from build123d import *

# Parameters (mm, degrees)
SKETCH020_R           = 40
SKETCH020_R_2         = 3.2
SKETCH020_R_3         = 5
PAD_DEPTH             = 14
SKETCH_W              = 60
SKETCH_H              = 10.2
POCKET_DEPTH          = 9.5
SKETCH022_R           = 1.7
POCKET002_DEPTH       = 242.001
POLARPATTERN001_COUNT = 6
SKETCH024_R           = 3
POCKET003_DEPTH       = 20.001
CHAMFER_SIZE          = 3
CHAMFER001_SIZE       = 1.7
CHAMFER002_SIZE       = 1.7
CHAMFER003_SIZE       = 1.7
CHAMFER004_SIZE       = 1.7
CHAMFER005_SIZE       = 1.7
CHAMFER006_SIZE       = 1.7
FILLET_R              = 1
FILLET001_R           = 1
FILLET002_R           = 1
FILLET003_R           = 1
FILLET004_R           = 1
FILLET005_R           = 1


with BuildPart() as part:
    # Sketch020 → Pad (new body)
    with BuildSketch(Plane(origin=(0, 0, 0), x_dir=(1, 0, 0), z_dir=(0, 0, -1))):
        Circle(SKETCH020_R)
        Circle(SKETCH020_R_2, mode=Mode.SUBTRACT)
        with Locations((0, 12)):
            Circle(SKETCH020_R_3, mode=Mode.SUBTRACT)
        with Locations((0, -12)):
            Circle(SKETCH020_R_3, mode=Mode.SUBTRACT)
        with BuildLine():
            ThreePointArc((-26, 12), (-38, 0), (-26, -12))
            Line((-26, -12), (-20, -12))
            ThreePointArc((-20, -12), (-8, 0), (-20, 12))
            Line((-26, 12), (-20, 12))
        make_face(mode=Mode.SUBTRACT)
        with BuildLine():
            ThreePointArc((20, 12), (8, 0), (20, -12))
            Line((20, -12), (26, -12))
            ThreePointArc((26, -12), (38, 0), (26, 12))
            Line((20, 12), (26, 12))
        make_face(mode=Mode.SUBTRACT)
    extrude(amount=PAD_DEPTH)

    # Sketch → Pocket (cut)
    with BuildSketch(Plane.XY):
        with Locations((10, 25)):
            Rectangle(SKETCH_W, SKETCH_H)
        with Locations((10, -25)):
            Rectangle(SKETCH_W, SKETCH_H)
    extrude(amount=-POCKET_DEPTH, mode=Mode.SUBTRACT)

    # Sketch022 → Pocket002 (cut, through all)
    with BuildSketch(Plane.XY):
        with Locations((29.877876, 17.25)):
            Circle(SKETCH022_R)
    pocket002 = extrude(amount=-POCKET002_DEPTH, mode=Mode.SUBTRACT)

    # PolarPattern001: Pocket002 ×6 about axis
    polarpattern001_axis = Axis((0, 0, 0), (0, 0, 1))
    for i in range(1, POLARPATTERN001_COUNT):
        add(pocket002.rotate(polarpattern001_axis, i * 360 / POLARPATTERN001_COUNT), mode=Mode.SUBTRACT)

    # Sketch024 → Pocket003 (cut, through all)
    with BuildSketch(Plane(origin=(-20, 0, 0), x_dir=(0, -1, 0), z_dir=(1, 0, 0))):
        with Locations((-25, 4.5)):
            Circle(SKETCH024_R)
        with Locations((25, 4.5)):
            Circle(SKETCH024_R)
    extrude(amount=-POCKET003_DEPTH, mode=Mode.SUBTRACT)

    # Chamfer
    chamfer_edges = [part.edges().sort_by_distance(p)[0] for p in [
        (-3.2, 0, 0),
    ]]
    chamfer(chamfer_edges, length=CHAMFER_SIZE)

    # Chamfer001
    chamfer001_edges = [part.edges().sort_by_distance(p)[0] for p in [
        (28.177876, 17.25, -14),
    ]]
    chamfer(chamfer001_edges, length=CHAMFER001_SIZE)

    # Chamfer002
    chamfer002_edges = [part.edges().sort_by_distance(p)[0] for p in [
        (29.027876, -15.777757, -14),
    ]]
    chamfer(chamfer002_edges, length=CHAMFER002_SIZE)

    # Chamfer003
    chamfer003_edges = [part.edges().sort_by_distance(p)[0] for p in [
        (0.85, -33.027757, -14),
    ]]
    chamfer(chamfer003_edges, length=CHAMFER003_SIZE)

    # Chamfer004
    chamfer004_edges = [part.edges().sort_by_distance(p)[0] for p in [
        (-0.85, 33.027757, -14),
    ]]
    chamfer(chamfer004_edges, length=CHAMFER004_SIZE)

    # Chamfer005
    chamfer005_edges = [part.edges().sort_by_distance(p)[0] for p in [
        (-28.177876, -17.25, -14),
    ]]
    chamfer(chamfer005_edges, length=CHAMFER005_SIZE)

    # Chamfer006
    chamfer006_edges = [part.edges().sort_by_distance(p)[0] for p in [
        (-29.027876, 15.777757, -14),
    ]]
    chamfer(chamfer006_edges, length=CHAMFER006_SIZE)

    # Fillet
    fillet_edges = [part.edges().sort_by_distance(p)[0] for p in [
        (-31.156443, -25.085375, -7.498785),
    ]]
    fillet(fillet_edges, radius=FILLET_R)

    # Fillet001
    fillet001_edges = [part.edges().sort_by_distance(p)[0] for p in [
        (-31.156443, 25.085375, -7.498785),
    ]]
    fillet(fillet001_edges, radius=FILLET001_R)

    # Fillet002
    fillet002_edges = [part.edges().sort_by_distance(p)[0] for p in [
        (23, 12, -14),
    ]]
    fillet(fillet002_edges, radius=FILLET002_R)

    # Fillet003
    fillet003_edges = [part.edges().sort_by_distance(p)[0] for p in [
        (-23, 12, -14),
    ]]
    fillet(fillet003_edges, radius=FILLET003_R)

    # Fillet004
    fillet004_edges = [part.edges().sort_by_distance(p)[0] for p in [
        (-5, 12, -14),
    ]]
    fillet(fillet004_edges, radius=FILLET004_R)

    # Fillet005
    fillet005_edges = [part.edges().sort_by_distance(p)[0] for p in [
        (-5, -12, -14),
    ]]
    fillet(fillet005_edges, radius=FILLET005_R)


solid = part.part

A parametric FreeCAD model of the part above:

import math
import FreeCAD as App
import Part
import Sketcher


def edges_at(feature, points):
    """Names of the edges that pass closest to the given points."""
    edges = feature.Shape.Edges
    near = lambda p: min(range(len(edges)), key=lambda i: edges[i].distToShape(Part.Vertex(*p))[0])
    return sorted({f"Edge{near(p) + 1}" for p in points})


def add_polygon(sketch, points):
    """Adds a closed chain of lines whose ends are joined by coincident constraints."""
    first, n = sketch.GeometryCount, len(points)
    for a, b in zip(points, points[1:] + points[:1]):
        sketch.addGeometry(Part.LineSegment(App.Vector(*a, 0), App.Vector(*b, 0)), False)
    for i in range(n):
        sketch.addConstraint(Sketcher.Constraint("Coincident", first + i, 2, first + (i + 1) % n, 1))

doc = App.newDocument("Part")
body = doc.addObject("PartDesign::Body", "Body")

# Sketch on XY plane
sketch1 = doc.addObject("Sketcher::SketchObject", "Sketch")
body.addObject(sketch1)
sketch1.AttachmentSupport = (doc.XY_Plane, [""])
sketch1.MapMode = "FlatFace"
sketch1.addGeometry(Part.Circle(App.Vector(0, 0, 0), App.Vector(0, 0, 1), 40), False)
sketch1.addGeometry(Part.Circle(App.Vector(0, 12, 0), App.Vector(0, 0, 1), 5), False)
sketch1.addGeometry(Part.ArcOfCircle(Part.Circle(App.Vector(-26, 0, 0), App.Vector(0, 0, 1), 12), math.radians(90), math.radians(270)), False)
sketch1.addGeometry(Part.LineSegment(App.Vector(-26, -12, 0), App.Vector(-20, -12, 0)), False)
sketch1.addGeometry(Part.ArcOfCircle(Part.Circle(App.Vector(-20, 0, 0), App.Vector(0, 0, 1), 12), math.radians(-90), math.radians(90)), False)
sketch1.addGeometry(Part.LineSegment(App.Vector(-20, 12, 0), App.Vector(-26, 12, 0)), False)
sketch1.addGeometry(Part.Circle(App.Vector(0, 0, 0), App.Vector(0, 0, 1), 3.2), False)
sketch1.addGeometry(Part.ArcOfCircle(Part.Circle(App.Vector(20, 0, 0), App.Vector(0, 0, 1), 12), math.radians(90), math.radians(270)), False)
sketch1.addGeometry(Part.LineSegment(App.Vector(20, -12, 0), App.Vector(26, -12, 0)), False)
sketch1.addGeometry(Part.ArcOfCircle(Part.Circle(App.Vector(26, 0, 0), App.Vector(0, 0, 1), 12), math.radians(-90), math.radians(90)), False)
sketch1.addGeometry(Part.LineSegment(App.Vector(26, 12, 0), App.Vector(20, 12, 0)), False)
sketch1.addGeometry(Part.Circle(App.Vector(0, -12, 0), App.Vector(0, 0, 1), 5), False)
sketch1.addConstraint(Sketcher.Constraint("Tangent", 2, 2, 3, 1))
sketch1.addConstraint(Sketcher.Constraint("Tangent", 3, 2, 4, 1))
sketch1.addConstraint(Sketcher.Constraint("Tangent", 4, 2, 5, 1))
sketch1.addConstraint(Sketcher.Constraint("Tangent", 5, 2, 2, 1))
sketch1.addConstraint(Sketcher.Constraint("Tangent", 7, 2, 8, 1))
sketch1.addConstraint(Sketcher.Constraint("Tangent", 8, 2, 9, 1))
sketch1.addConstraint(Sketcher.Constraint("Tangent", 9, 2, 10, 1))
sketch1.addConstraint(Sketcher.Constraint("Tangent", 10, 2, 7, 1))
sketch1.addConstraint(Sketcher.Constraint("Horizontal", 3))
sketch1.addConstraint(Sketcher.Constraint("Horizontal", 5))
sketch1.addConstraint(Sketcher.Constraint("Horizontal", 8))
sketch1.addConstraint(Sketcher.Constraint("Horizontal", 10))
sketch1.addConstraint(Sketcher.Constraint("Coincident", 0, 3, -1, 1))
sketch1.addConstraint(Sketcher.Constraint("Coincident", 6, 3, -1, 1))
sketch1.addConstraint(Sketcher.Constraint("Equal", 4, 7))
sketch1.addConstraint(Sketcher.Constraint("Equal", 1, 11))
sketch1.addConstraint(Sketcher.Constraint("Symmetric", 4, 3, 7, 3, -1, 1))
sketch1.addConstraint(Sketcher.Constraint("Symmetric", 1, 3, 11, 3, -1, 1))
sketch1.addConstraint(Sketcher.Constraint("Symmetric", 2, 3, 9, 3, -2))
sketch1.addConstraint(Sketcher.Constraint("PointOnObject", 1, 3, -2))
sketch1.addConstraint(Sketcher.Constraint("Horizontal", 11, 3, 2, 2))
sketch1.addConstraint(Sketcher.Constraint("Diameter", 0, 80.0))
sketch1.addConstraint(Sketcher.Constraint("Diameter", 1, 10.0))
sketch1.addConstraint(Sketcher.Constraint("Radius", 2, 12.0))
sketch1.addConstraint(Sketcher.Constraint("Diameter", 6, 6.4))
sketch1.addConstraint(Sketcher.Constraint("DistanceX", 3, 1, 3, 2, 6.0))
sketch1.addConstraint(Sketcher.Constraint("DistanceX", 2, 3, -1, 1, 26.0))
pad1 = doc.addObject("PartDesign::Pad", "Pad")
body.addObject(pad1)
pad1.Profile = sketch1
pad1.Length = 14
pad1.Reversed = True

# Sketch on XY plane
sketch2 = doc.addObject("Sketcher::SketchObject", "Sketch001")
body.addObject(sketch2)
sketch2.AttachmentSupport = (doc.XY_Plane, [""])
sketch2.MapMode = "FlatFace"
add_polygon(sketch2, [(-20, 30), (-20, 20), (40, 20), (40, 30)])  # lines 0-3
add_polygon(sketch2, [(-20, -20), (-20, -30), (40, -30), (40, -20)])  # lines 4-7
sketch2.addConstraint(Sketcher.Constraint("Vertical", 0))
sketch2.addConstraint(Sketcher.Constraint("Horizontal", 1))
sketch2.addConstraint(Sketcher.Constraint("Vertical", 2))
sketch2.addConstraint(Sketcher.Constraint("Horizontal", 3))
sketch2.addConstraint(Sketcher.Constraint("Vertical", 4))
sketch2.addConstraint(Sketcher.Constraint("Horizontal", 5))
sketch2.addConstraint(Sketcher.Constraint("Vertical", 6))
sketch2.addConstraint(Sketcher.Constraint("Horizontal", 7))
sketch2.addConstraint(Sketcher.Constraint("Symmetric", 3, 2, 4, 2, -1))
sketch2.addConstraint(Sketcher.Constraint("Symmetric", 1, 2, 6, 2, -1))
sketch2.addConstraint(Sketcher.Constraint("DistanceX", 1, 1, 1, 2, 60.0))
sketch2.addConstraint(Sketcher.Constraint("DistanceY", 0, 2, 0, 1, 10.2))
sketch2.addConstraint(Sketcher.Constraint("DistanceX", 0, 2, -1, 1, 20.0))
sketch2.addConstraint(Sketcher.Constraint("DistanceY", 4, 2, 0, 2, 50.0))
pocket1 = doc.addObject("PartDesign::Pocket", "Pocket")
body.addObject(pocket1)
pocket1.Profile = sketch2
pocket1.Length = 9.5

# Sketch on XY plane
sketch3 = doc.addObject("Sketcher::SketchObject", "Sketch002")
body.addObject(sketch3)
sketch3.AttachmentSupport = (doc.XY_Plane, [""])
sketch3.MapMode = "FlatFace"
sketch3.addGeometry(Part.Circle(App.Vector(29.9, 17.2, 0), App.Vector(0, 0, 1), 1.7), False)
sketch3.addConstraint(Sketcher.Constraint("Diameter", 0, 3.4))
sketch3.addConstraint(Sketcher.Constraint("DistanceY", -1, 1, 0, 3, 17.25))
sketch3.addConstraint(Sketcher.Constraint("DistanceX", -1, 1, 0, 3, 29.877876))
pocket2 = doc.addObject("PartDesign::Pocket", "Pocket001")
body.addObject(pocket2)
pocket2.Profile = sketch3
pocket2.Type = "ThroughAll"
doc.recompute()

polarpattern = doc.addObject("PartDesign::PolarPattern", "PolarPattern")
body.addObject(polarpattern)
polarpattern.Originals = [pocket2]
polarpattern.Axis = (doc.Z_Axis, [""])
polarpattern.Angle = 360
polarpattern.Occurrences = 6
body.Tip = polarpattern

# Sketch on YZ plane
sketch4 = doc.addObject("Sketcher::SketchObject", "Sketch003")
body.addObject(sketch4)
sketch4.AttachmentSupport = (doc.YZ_Plane, [""])
sketch4.MapMode = "FlatFace"
sketch4.AttachmentOffset = App.Placement(App.Vector(0, 0, -20), App.Rotation())
sketch4.addGeometry(Part.Circle(App.Vector(25, -4.5, 0), App.Vector(0, 0, 1), 3), False)
sketch4.addGeometry(Part.Circle(App.Vector(-25, -4.5, 0), App.Vector(0, 0, 1), 3), False)
sketch4.addConstraint(Sketcher.Constraint("Equal", 0, 1))
sketch4.addConstraint(Sketcher.Constraint("Symmetric", 0, 3, 1, 3, -2))
sketch4.addConstraint(Sketcher.Constraint("Diameter", 0, 6.0))
sketch4.addConstraint(Sketcher.Constraint("DistanceX", -1, 1, 0, 3, 25.0))
sketch4.addConstraint(Sketcher.Constraint("DistanceY", 0, 3, -1, 1, 4.5))
pocket3 = doc.addObject("PartDesign::Pocket", "Pocket002")
body.addObject(pocket3)
pocket3.Profile = sketch4
pocket3.Type = "ThroughAll"
doc.recompute()

chamfer = doc.addObject("PartDesign::Chamfer", "Chamfer")
body.addObject(chamfer)
chamfer.Base = (pocket3, edges_at(pocket3, [(-3.2, 0, 0)]))
chamfer.Size = 3
doc.recompute()

chamfer2 = doc.addObject("PartDesign::Chamfer", "Chamfer001")
body.addObject(chamfer2)
chamfer2.Base = (chamfer, edges_at(chamfer, [(28.178, 17.25, -14)]))
chamfer2.Size = 1.7
doc.recompute()

chamfer3 = doc.addObject("PartDesign::Chamfer", "Chamfer002")
body.addObject(chamfer3)
chamfer3.Base = (chamfer2, edges_at(chamfer2, [(29.028, -15.778, -14)]))
chamfer3.Size = 1.7
doc.recompute()

chamfer4 = doc.addObject("PartDesign::Chamfer", "Chamfer003")
body.addObject(chamfer4)
chamfer4.Base = (chamfer3, edges_at(chamfer3, [(0.85, -33.028, -14)]))
chamfer4.Size = 1.7
doc.recompute()

chamfer5 = doc.addObject("PartDesign::Chamfer", "Chamfer004")
body.addObject(chamfer5)
chamfer5.Base = (chamfer4, edges_at(chamfer4, [(-0.85, 33.028, -14)]))
chamfer5.Size = 1.7
doc.recompute()

chamfer6 = doc.addObject("PartDesign::Chamfer", "Chamfer005")
body.addObject(chamfer6)
chamfer6.Base = (chamfer5, edges_at(chamfer5, [(-28.178, -17.25, -14)]))
chamfer6.Size = 1.7
doc.recompute()

chamfer7 = doc.addObject("PartDesign::Chamfer", "Chamfer006")
body.addObject(chamfer7)
chamfer7.Base = (chamfer6, edges_at(chamfer6, [(-29.028, 15.778, -14)]))
chamfer7.Size = 1.7
doc.recompute()

fillet = doc.addObject("PartDesign::Fillet", "Fillet")
body.addObject(fillet)
fillet.Base = (chamfer7, edges_at(chamfer7, [(-33.407, -22, -4.5)]))
fillet.Radius = 1
doc.recompute()

fillet2 = doc.addObject("PartDesign::Fillet", "Fillet001")
body.addObject(fillet2)
fillet2.Base = (fillet, edges_at(fillet, [(-28.566, 28, -4.5)]))
fillet2.Radius = 1
doc.recompute()

fillet3 = doc.addObject("PartDesign::Fillet", "Fillet002")
body.addObject(fillet3)
fillet3.Base = (fillet2, edges_at(fillet2, [(23, 12, -14)]))
fillet3.Radius = 1
doc.recompute()

fillet4 = doc.addObject("PartDesign::Fillet", "Fillet003")
body.addObject(fillet4)
fillet4.Base = (fillet3, edges_at(fillet3, [(-23, 12, -14)]))
fillet4.Radius = 1
doc.recompute()

fillet5 = doc.addObject("PartDesign::Fillet", "Fillet004")
body.addObject(fillet5)
fillet5.Base = (fillet4, edges_at(fillet4, [(-5, 12, -14)]))
fillet5.Radius = 1
doc.recompute()

fillet6 = doc.addObject("PartDesign::Fillet", "Fillet005")
body.addObject(fillet6)
fillet6.Base = (fillet5, edges_at(fillet5, [(-5, -12, -14)]))
fillet6.Radius = 1

doc.recompute()
